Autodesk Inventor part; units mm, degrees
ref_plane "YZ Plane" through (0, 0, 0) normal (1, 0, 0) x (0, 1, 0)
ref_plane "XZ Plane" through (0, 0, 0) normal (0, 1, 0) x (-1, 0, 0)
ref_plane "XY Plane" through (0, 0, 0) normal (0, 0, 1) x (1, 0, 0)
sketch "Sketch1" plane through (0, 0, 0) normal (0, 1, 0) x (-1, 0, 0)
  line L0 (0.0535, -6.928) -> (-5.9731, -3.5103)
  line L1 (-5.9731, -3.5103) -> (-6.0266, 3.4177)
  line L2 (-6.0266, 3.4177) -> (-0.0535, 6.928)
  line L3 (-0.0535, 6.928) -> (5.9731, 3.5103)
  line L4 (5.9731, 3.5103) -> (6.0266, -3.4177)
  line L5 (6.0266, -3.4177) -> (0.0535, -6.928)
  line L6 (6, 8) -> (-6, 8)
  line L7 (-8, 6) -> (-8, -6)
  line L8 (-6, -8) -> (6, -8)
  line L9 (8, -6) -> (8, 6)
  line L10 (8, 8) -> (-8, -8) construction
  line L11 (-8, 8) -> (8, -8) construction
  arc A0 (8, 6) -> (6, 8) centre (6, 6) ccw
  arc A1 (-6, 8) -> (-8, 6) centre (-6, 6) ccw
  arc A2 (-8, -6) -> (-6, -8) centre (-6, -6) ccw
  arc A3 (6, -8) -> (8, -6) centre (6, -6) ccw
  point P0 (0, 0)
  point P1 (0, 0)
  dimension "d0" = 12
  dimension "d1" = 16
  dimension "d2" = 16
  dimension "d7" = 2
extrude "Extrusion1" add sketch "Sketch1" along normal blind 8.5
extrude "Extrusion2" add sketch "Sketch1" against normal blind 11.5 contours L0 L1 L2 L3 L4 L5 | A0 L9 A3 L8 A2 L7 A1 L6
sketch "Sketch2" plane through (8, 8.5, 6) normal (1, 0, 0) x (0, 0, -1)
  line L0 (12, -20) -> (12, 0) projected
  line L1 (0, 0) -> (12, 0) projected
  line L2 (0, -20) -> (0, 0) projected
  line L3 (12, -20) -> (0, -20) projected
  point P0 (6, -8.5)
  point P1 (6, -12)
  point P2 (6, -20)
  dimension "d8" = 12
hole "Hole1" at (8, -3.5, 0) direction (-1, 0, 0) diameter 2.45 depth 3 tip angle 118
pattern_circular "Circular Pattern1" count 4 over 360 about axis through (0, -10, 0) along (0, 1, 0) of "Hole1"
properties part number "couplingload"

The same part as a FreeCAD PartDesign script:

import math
import FreeCAD as App
import Part
import Sketcher
from FreeCAD import Vector
Q = App.Units.Quantity


def add_polygon(sketch, points):
    """Adds a closed chain of lines whose ends are joined by coincident constraints."""
    first, n = sketch.GeometryCount, len(points)
    for a, b in zip(points, points[1:] + points[:1]):
        sketch.addGeometry(Part.LineSegment(App.Vector(*a, 0), App.Vector(*b, 0)), False)
    for i in range(n):
        sketch.addConstraint(Sketcher.Constraint("Coincident", first + i, 2, first + (i + 1) % n, 1))

doc = App.newDocument("Part")
params = doc.addObject("Spreadsheet::Sheet", "Params")
for row, (alias, value) in enumerate([
    ("sketch1_radius", "2 mm"),
    ("sketch1_width", "12 mm"),
    ("pad1_length", "8.5 mm"),
    ("sketch2_radius", "2 mm"),
    ("sketch2_width", "12 mm"),
    ("pad2_length", "11.5 mm"),
    ("sketch3_diameter", "2.45 mm"),
    ("hole_diameter", "2.45 mm"),
    ("hole_depth", "3 mm"),
], start=1):
    params.set(f"A{row}", alias)
    params.set(f"B{row}", "=" + value)
    params.setAlias(f"B{row}", alias)

body = doc.addObject("PartDesign::Body", "Body")

sketch1 = body.newObject("Sketcher::SketchObject", "Sketch")
sketch1.AttachmentSupport = (doc.getObject("XZ_Plane"), [""])
sketch1.MapMode = "FlatFace"
sketch1.addGeometry(Part.ArcOfCircle(Part.Circle(Vector(-6, 6, 0), Vector(0, 0, 1), 2), math.radians(90), math.radians(180)), False)
sketch1.addGeometry(Part.LineSegment(Vector(-6, 8, 0), Vector(6, 8, 0)), False)
sketch1.addGeometry(Part.ArcOfCircle(Part.Circle(Vector(6, 6, 0), Vector(0, 0, 1), 2), math.radians(0), math.radians(90)), False)
sketch1.addGeometry(Part.LineSegment(Vector(8, 6, 0), Vector(8, -6, 0)), False)
sketch1.addGeometry(Part.ArcOfCircle(Part.Circle(Vector(6, -6, 0), Vector(0, 0, 1), 2), math.radians(-90), math.radians(0)), False)
sketch1.addGeometry(Part.LineSegment(Vector(6, -8, 0), Vector(-6, -8, 0)), False)
sketch1.addGeometry(Part.ArcOfCircle(Part.Circle(Vector(-6, -6, 0), Vector(0, 0, 1), 2), math.radians(180), math.radians(270)), False)
sketch1.addGeometry(Part.LineSegment(Vector(-8, -6, 0), Vector(-8, 6, 0)), False)
add_polygon(sketch1, [(-6, -3.4), (-0.1, -6.9), (6, -3.5), (6, 3.4), (0.1, 6.9), (-6, 3.5)])
sketch1.addConstraint([
    Sketcher.Constraint("Tangent", 0, 1, 1, 1),
    Sketcher.Constraint("Tangent", 1, 2, 2, 2),
    Sketcher.Constraint("Tangent", 2, 1, 3, 1),
    Sketcher.Constraint("Tangent", 3, 2, 4, 2),
    Sketcher.Constraint("Tangent", 4, 1, 5, 1),
    Sketcher.Constraint("Tangent", 5, 2, 6, 2),
    Sketcher.Constraint("Tangent", 6, 1, 7, 1),
    Sketcher.Constraint("Tangent", 7, 2, 0, 2),
    Sketcher.Constraint("Horizontal", 1),
    Sketcher.Constraint("Vertical", 3),
    Sketcher.Constraint("Horizontal", 5),
    Sketcher.Constraint("Vertical", 7),
    Sketcher.Constraint("Equal", 0, 2),
    Sketcher.Constraint("Equal", 2, 4),
    Sketcher.Constraint("Equal", 4, 6),
    Sketcher.Constraint("Symmetric", 0, 3, 4, 3, -1, 1),
    Sketcher.Constraint("Symmetric", 8, 2, 11, 2, -1, 1),
    Sketcher.Constraint("Symmetric", 9, 2, 12, 2, -1, 1),
    Sketcher.Constraint("Symmetric", 10, 2, 13, 2, -1, 1),
    Sketcher.Constraint("Equal", 5, 3),
    Sketcher.Constraint("Equal", 8, 9),
    Sketcher.Constraint("Equal", 9, 10),
    Sketcher.Constraint("Radius", 0, Q("2 mm")),
    Sketcher.Constraint("DistanceX", 1, 1, 1, 2, Q("12 mm")),
    Sketcher.Constraint("DistanceY", 8, 2, -1, 1, Q("6.928 mm")),
    Sketcher.Constraint("DistanceX", -1, 1, 9, 2, Q("5.973 mm")),
    Sketcher.Constraint("DistanceY", 9, 2, 10, 2, Q("6.928 mm")),
    Sketcher.Constraint("DistanceX", 11, 2, 10, 2, Q("5.973 mm")),
])
sketch1.setExpression("Constraints[28]", "Params.sketch1_radius")
sketch1.setExpression("Constraints[29]", "Params.sketch1_width")
pad1 = body.newObject("PartDesign::Pad", "Pad")
pad1.Profile = sketch1
pad1.setExpression("Length", "Params.pad1_length")
pad1.Reversed = True

sketch2 = body.newObject("Sketcher::SketchObject", "Sketch001")
sketch2.AttachmentSupport = (doc.getObject("XZ_Plane"), [""])
sketch2.MapMode = "FlatFace"
sketch2.addGeometry([
    Part.ArcOfCircle(Part.Circle(Vector(-6, 6, 0), Vector(0, 0, 1), 2), math.radians(90), math.radians(180)),
    Part.LineSegment(Vector(-6, 8, 0), Vector(6, 8, 0)),
    Part.ArcOfCircle(Part.Circle(Vector(6, 6, 0), Vector(0, 0, 1), 2), math.radians(0), math.radians(90)),
    Part.LineSegment(Vector(8, 6, 0), Vector(8, -6, 0)),
    Part.ArcOfCircle(Part.Circle(Vector(6, -6, 0), Vector(0, 0, 1), 2), math.radians(-90), math.radians(0)),
    Part.LineSegment(Vector(6, -8, 0), Vector(-6, -8, 0)),
    Part.ArcOfCircle(Part.Circle(Vector(-6, -6, 0), Vector(0, 0, 1), 2), math.radians(180), math.radians(270)),
    Part.LineSegment(Vector(-8, -6, 0), Vector(-8, 6, 0)),
], False)
sketch2.addConstraint([
    Sketcher.Constraint("Tangent", 0, 1, 1, 1),
    Sketcher.Constraint("Tangent", 1, 2, 2, 2),
    Sketcher.Constraint("Tangent", 2, 1, 3, 1),
    Sketcher.Constraint("Tangent", 3, 2, 4, 2),
    Sketcher.Constraint("Tangent", 4, 1, 5, 1),
    Sketcher.Constraint("Tangent", 5, 2, 6, 2),
    Sketcher.Constraint("Tangent", 6, 1, 7, 1),
    Sketcher.Constraint("Tangent", 7, 2, 0, 2),
    Sketcher.Constraint("Horizontal", 1),
    Sketcher.Constraint("Vertical", 3),
    Sketcher.Constraint("Horizontal", 5),
    Sketcher.Constraint("Vertical", 7),
    Sketcher.Constraint("Equal", 0, 2),
    Sketcher.Constraint("Equal", 2, 4),
    Sketcher.Constraint("Equal", 4, 6),
    Sketcher.Constraint("Symmetric", 0, 3, 4, 3, -1, 1),
    Sketcher.Constraint("Equal", 5, 3),
    Sketcher.Constraint("Radius", 0, Q("2 mm")),
    Sketcher.Constraint("DistanceX", 1, 1, 1, 2, Q("12 mm")),
])
sketch2.setExpression("Constraints[17]", "Params.sketch2_radius")
sketch2.setExpression("Constraints[18]", "Params.sketch2_width")
pad2 = body.newObject("PartDesign::Pad", "Pad001")
pad2.Profile = sketch2
pad2.setExpression("Length", "Params.pad2_length")

sketch3 = body.newObject("Sketcher::SketchObject", "Sketch002")
sketch3.AttachmentSupport = (doc.getObject("YZ_Plane"), [""])
sketch3.MapMode = "FlatFace"
sketch3.AttachmentOffset = App.Placement(Vector(0, 0, 8), App.Rotation())
sketch3.addGeometry(Part.Circle(Vector(-3.5, 0, 0), Vector(0, 0, 1), 1.2), False)
sketch3.addConstraint([
    Sketcher.Constraint("PointOnObject", 0, 3, -1),
    Sketcher.Constraint("Diameter", 0, Q("2.45 mm")),
    Sketcher.Constraint("DistanceX", 0, 3, -1, 1, Q("3.5 mm")),
])
sketch3.setExpression("Constraints[1]", "Params.sketch3_diameter")
doc.recompute()
hole = body.newObject("PartDesign::Hole", "Hole")
hole.Profile = sketch3
hole.ThreadType = "None"
hole.setExpression("Diameter", "Params.hole_diameter")
hole.DepthType = "Dimension"
hole.setExpression("Depth", "Params.hole_depth")
hole.DrillPoint = "Angled"
hole.DrillPointAngle = 118
doc.recompute()

polarpattern = body.newObject("PartDesign::PolarPattern", "PolarPattern")
polarpattern.Originals = [hole]
polarpattern.Axis = (doc.getObject("Y_Axis"), [""])
polarpattern.Angle = 360
polarpattern.Occurrences = 4
body.Tip = polarpattern

doc.recompute()
